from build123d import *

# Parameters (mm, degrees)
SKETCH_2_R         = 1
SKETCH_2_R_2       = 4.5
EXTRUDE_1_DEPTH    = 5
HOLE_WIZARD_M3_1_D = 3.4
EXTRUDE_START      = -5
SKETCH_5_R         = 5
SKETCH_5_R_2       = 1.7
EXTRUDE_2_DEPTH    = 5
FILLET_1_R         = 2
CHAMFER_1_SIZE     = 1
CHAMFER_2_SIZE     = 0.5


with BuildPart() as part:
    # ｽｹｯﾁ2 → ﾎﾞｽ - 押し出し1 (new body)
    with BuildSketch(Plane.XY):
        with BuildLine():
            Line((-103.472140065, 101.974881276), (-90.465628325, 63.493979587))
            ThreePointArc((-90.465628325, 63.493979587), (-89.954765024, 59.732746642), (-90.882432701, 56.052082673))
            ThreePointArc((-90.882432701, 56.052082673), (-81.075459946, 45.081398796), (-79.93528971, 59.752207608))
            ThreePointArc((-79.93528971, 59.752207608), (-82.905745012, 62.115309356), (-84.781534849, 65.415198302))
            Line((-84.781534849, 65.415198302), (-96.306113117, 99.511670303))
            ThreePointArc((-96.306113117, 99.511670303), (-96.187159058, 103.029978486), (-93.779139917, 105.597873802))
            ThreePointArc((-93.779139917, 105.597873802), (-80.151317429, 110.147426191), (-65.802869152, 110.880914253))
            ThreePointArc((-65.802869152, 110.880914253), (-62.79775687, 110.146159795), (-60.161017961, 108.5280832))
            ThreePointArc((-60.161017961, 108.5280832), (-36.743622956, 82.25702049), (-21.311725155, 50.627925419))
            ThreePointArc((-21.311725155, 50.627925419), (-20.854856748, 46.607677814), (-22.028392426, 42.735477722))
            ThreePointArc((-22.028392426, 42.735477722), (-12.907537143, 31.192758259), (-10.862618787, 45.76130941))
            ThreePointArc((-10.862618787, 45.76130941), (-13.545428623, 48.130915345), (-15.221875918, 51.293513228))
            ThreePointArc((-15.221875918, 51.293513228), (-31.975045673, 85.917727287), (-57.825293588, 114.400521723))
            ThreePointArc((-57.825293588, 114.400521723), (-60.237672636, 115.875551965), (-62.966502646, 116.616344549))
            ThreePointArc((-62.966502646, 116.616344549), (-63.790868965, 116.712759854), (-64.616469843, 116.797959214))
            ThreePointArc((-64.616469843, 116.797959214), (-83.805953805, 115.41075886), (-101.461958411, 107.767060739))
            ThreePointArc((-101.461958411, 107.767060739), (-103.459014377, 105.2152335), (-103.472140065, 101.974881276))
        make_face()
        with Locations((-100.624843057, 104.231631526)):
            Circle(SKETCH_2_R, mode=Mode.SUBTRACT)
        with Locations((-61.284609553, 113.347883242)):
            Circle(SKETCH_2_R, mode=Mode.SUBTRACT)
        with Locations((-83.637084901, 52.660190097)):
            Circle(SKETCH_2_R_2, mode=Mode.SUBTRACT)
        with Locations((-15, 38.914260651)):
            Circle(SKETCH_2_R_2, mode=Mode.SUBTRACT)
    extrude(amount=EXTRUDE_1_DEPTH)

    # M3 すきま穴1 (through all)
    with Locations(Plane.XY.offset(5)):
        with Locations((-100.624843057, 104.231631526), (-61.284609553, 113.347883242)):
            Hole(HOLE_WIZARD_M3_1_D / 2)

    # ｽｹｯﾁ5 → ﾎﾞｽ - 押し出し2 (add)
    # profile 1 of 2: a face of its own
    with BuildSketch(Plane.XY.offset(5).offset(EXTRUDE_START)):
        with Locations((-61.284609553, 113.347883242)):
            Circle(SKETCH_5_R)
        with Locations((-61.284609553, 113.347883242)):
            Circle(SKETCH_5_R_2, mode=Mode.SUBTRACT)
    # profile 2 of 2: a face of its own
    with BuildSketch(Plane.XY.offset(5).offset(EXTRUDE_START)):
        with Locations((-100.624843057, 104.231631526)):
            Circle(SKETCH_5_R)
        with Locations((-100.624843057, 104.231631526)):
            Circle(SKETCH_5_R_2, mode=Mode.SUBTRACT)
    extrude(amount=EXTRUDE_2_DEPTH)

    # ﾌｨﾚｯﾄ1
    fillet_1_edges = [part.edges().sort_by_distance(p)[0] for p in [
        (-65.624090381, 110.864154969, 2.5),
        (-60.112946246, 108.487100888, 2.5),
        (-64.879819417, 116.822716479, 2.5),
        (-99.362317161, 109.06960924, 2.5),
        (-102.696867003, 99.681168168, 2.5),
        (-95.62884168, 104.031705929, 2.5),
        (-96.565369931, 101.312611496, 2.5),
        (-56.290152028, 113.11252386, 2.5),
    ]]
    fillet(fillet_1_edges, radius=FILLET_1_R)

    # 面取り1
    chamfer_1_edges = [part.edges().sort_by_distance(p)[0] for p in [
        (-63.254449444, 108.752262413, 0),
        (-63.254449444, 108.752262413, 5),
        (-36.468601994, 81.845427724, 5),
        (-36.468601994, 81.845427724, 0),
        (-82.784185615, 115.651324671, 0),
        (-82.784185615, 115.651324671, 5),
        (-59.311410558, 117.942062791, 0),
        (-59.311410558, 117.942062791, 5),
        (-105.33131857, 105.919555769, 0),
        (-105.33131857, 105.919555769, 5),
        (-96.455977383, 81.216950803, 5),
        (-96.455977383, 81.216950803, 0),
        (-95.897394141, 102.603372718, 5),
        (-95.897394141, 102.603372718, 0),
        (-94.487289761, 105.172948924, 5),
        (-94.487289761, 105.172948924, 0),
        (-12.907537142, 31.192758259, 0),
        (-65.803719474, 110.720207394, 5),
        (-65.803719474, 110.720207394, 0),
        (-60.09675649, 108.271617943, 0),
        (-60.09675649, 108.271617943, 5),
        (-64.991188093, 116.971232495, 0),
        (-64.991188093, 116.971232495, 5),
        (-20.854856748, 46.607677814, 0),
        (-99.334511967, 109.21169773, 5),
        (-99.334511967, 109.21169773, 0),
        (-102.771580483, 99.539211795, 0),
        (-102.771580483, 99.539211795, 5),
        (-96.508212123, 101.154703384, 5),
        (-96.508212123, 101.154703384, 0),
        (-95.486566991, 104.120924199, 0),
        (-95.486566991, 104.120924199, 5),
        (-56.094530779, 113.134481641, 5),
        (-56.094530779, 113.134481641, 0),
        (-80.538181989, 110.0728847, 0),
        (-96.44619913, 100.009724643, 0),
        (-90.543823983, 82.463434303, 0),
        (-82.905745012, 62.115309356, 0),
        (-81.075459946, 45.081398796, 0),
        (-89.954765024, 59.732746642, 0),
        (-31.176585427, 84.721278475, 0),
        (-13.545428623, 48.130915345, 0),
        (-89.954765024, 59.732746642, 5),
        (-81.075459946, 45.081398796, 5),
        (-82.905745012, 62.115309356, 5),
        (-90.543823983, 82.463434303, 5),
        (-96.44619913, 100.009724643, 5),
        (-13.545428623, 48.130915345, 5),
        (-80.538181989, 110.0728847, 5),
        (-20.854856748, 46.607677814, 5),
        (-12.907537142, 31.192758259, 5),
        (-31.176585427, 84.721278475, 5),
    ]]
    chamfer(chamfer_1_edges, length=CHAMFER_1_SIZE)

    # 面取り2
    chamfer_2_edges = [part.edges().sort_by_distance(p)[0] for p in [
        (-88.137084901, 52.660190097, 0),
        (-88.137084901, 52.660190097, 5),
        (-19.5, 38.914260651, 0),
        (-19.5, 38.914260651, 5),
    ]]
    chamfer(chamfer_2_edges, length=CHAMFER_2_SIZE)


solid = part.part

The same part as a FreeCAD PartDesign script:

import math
import FreeCAD as App
import Part
import Sketcher
from FreeCAD import Vector
Q = App.Units.Quantity


def edges_at(feature, points):
    """Names of the edges that pass closest to the given points."""
    edges = feature.Shape.Edges
    near = lambda p: min(range(len(edges)), key=lambda i: edges[i].distToShape(Part.Vertex(*p))[0])
    return sorted({f"Edge{near(p) + 1}" for p in points})

doc = App.newDocument("Part")
body = doc.addObject("PartDesign::Body", "Body")

# Sketch on XY plane
sketch1 = doc.addObject("Sketcher::SketchObject", "Sketch")
body.addObject(sketch1)
sketch1.AttachmentSupport = (doc.XY_Plane, [""])
sketch1.MapMode = "FlatFace"
sketch1.addGeometry([
    Part.LineSegment(Vector(-103.5, 102, 0), Vector(-90.5, 63.5, 0)),  # 0
    Part.ArcOfCircle(Part.Circle(Vector(-99.9, 60.3, 0), Vector(0, 0, 1), 10), math.radians(-25), math.radians(19)),  # 1
    Part.ArcOfCircle(Part.Circle(Vector(-83.6, 52.7, 0), Vector(0, 0, 1), 8), math.radians(155), math.radians(422)),  # 2
    Part.ArcOfCircle(Part.Circle(Vector(-75.3, 68.6, 0), Vector(0, 0, 1), 10), math.radians(-161), math.radians(-118)),  # 3
    Part.LineSegment(Vector(-84.8, 65.4, 0), Vector(-96.3, 99.5, 0)),  # 4
    Part.ArcOfCircle(Part.Circle(Vector(-91.6, 101.1, 0), Vector(0, 0, 1), 5), math.radians(116), math.radians(199)),  # 5
    Part.ArcOfCircle(Part.Circle(Vector(-70.3, 57.9, 0), Vector(0, 0, 1), 53.2), math.radians(85), math.radians(116)),  # 6
    Part.ArcOfCircle(Part.Circle(Vector(-66.6, 100.9, 0), Vector(0, 0, 1), 10), math.radians(50), math.radians(85)),  # 7
    Part.ArcOfCircle(Part.Circle(Vector(-143.7, 10.5, 0), Vector(0, 0, 1), 128.8), math.radians(18), math.radians(50)),  # 8
    Part.ArcOfCircle(Part.Circle(Vector(-30.8, 47.5, 0), Vector(0, 0, 1), 10), math.radians(-29), math.radians(18)),  # 9
    Part.ArcOfCircle(Part.Circle(Vector(-15, 38.9, 0), Vector(0, 0, 1), 8), math.radians(151), math.radians(419)),  # 10
    Part.ArcOfCircle(Part.Circle(Vector(-5.7, 54.3, 0), Vector(0, 0, 1), 10), math.radians(-162), math.radians(-121)),  # 11
    Part.ArcOfCircle(Part.Circle(Vector(-143.7, 10.5, 0), Vector(0, 0, 1), 134.8), math.radians(18), math.radians(50)),  # 12
    Part.ArcOfCircle(Part.Circle(Vector(-64.2, 106.7, 0), Vector(0, 0, 1), 10), math.radians(50), math.radians(83)),  # 13
    Part.ArcOfCircle(Part.Circle(Vector(-70.5, 56, 0), Vector(0, 0, 1), 61.1), math.radians(82.94), math.radians(84.5)),  # 14
    Part.ArcOfCircle(Part.Circle(Vector(-70.1, 59.6, 0), Vector(0, 0, 1), 57.5), math.radians(84), math.radians(123)),  # 15
    Part.ArcOfCircle(Part.Circle(Vector(-98.7, 103.6, 0), Vector(0, 0, 1), 5), math.radians(123), math.radians(199)),  # 16
    Part.Circle(Vector(-83.6, 52.7, 0), Vector(0, 0, 1), 4.5),  # 17
    Part.Circle(Vector(-15, 38.9, 0), Vector(0, 0, 1), 4.5),  # 18
    Part.Circle(Vector(-100.6, 104.2, 0), Vector(0, 0, 1), 1),  # 19
    Part.Circle(Vector(-61.3, 113.3, 0), Vector(0, 0, 1), 1),  # 20
], False)
sketch1.addConstraint([
    Sketcher.Constraint("Tangent", 0, 2, 1, 2),
    Sketcher.Constraint("Tangent", 1, 1, 2, 1),
    Sketcher.Constraint("Tangent", 2, 2, 3, 2),
    Sketcher.Constraint("Tangent", 3, 1, 4, 1),
    Sketcher.Constraint("Tangent", 4, 2, 5, 2),
    Sketcher.Constraint("Tangent", 5, 1, 6, 2),
    Sketcher.Constraint("Tangent", 6, 1, 7, 2),
    Sketcher.Constraint("Tangent", 7, 1, 8, 2),
    Sketcher.Constraint("Tangent", 8, 1, 9, 2),
    Sketcher.Constraint("Tangent", 9, 1, 10, 1),
    Sketcher.Constraint("Tangent", 10, 2, 11, 2),
    Sketcher.Constraint("Tangent", 11, 1, 12, 1),
    Sketcher.Constraint("Tangent", 12, 2, 13, 1),
    Sketcher.Constraint("Tangent", 13, 2, 14, 1),
    Sketcher.Constraint("Tangent", 14, 2, 15, 1),
    Sketcher.Constraint("Tangent", 15, 2, 16, 1),
    Sketcher.Constraint("Tangent", 16, 2, 0, 1),
    Sketcher.Constraint("Coincident", 12, 3, 8, 3),
    Sketcher.Constraint("Coincident", 17, 3, 2, 3),
    Sketcher.Constraint("Coincident", 18, 3, 10, 3),
    Sketcher.Constraint("Equal", 1, 3),
    Sketcher.Constraint("Equal", 3, 7),
    Sketcher.Constraint("Equal", 7, 9),
    Sketcher.Constraint("Equal", 2, 10),
    Sketcher.Constraint("Equal", 9, 11),
    Sketcher.Constraint("Equal", 11, 13),
    Sketcher.Constraint("Equal", 5, 16),
    Sketcher.Constraint("Equal", 17, 18),
    Sketcher.Constraint("Equal", 19, 20),
    Sketcher.Constraint("Parallel", 0, 4),
    Sketcher.Constraint("Diameter", 17, Q("9 mm")),
    Sketcher.Constraint("Diameter", 19, Q("2 mm")),
    Sketcher.Constraint("Radius", 1, Q("10 mm")),
    Sketcher.Constraint("Radius", 2, Q("8 mm")),
    Sketcher.Constraint("Radius", 5, Q("5 mm")),
    Sketcher.Constraint("DistanceX", 10, 3, -1, 1, Q("15 mm")),
    Sketcher.Constraint("Radius", 8, Q("128.793821 mm")),
    Sketcher.Constraint("Radius", 12, Q("134.793821 mm")),
    Sketcher.Constraint("Radius", 15, Q("57.46331 mm")),
    Sketcher.Constraint("DistanceY", -1, 1, 9, 3, Q("47.511999 mm")),
    Sketcher.Constraint("Radius", 6, Q("53.151912 mm")),
    Sketcher.Constraint("Radius", 14, Q("61.050597 mm")),
    Sketcher.Constraint("DistanceX", 16, 2, 5, 1, Q("9.693 mm")),
    Sketcher.Constraint("DistanceY", -1, 1, 3, 1, Q("65.415198 mm")),
    Sketcher.Constraint("DistanceY", 7, 3, 5, 3, Q("0.196099 mm")),
    Sketcher.Constraint("DistanceX", 8, 3, 3, 3, Q("68.3856 mm")),
    Sketcher.Constraint("DistanceX", 2, 3, 9, 3, Q("52.823202 mm")),
    Sketcher.Constraint("DistanceX", 7, 3, 9, 3, Q("35.832899 mm")),
    Sketcher.Constraint("DistanceY", 15, 3, 3, 3, Q("9.017798 mm")),
    Sketcher.Constraint("DistanceX", 19, 3, 13, 3, Q("36.429202 mm")),
    Sketcher.Constraint("DistanceY", 4, 2, 13, 3, Q("7.180501 mm")),
    Sketcher.Constraint("DistanceX", 5, 3, 6, 1, Q("25.766499 mm")),
    Sketcher.Constraint("DistanceY", 7, 1, 20, 3, Q("4.8198 mm")),
    Sketcher.Constraint("DistanceX", 9, 1, 11, 3, Q("16.3375 mm")),
    Sketcher.Constraint("DistanceX", 6, 1, 14, 2, Q("1.186399 mm")),
    Sketcher.Constraint("Distance", 4, Q("35.991462 mm")),
    Sketcher.Constraint("DistanceY", -1, 1, 19, 3, Q("104.231632 mm")),
    Sketcher.Constraint("DistanceX", 20, 3, -1, 1, Q("61.28461 mm")),
])
pad1 = doc.addObject("PartDesign::Pad", "Pad")
body.addObject(pad1)
pad1.Profile = sketch1
pad1.Length = 5

# Sketch on XY plane
sketch2 = doc.addObject("Sketcher::SketchObject", "Sketch001")
body.addObject(sketch2)
sketch2.AttachmentSupport = (doc.XY_Plane, [""])
sketch2.MapMode = "FlatFace"
sketch2.AttachmentOffset = App.Placement(Vector(0, 0, 5), App.Rotation())
sketch2.addGeometry([
    Part.Circle(Vector(-100.6, 104.2, 0), Vector(0, 0, 1), 1.7),
    Part.Circle(Vector(-61.3, 113.3, 0), Vector(0, 0, 1), 1.7),
], False)
sketch2.addConstraint([
    Sketcher.Constraint("Equal", 0, 1),
    Sketcher.Constraint("Diameter", 0, Q("3.4 mm")),
    Sketcher.Constraint("DistanceY", -1, 1, 0, 3, Q("104.231632 mm")),
    Sketcher.Constraint("DistanceX", 1, 3, -1, 1, Q("61.28461 mm")),
    Sketcher.Constraint("DistanceY", 0, 3, 1, 3, Q("9.116252 mm")),
    Sketcher.Constraint("DistanceX", 0, 3, -1, 1, Q("100.624843 mm")),
])
doc.recompute()
hole = doc.addObject("PartDesign::Hole", "Hole")
body.addObject(hole)
hole.Profile = sketch2
hole.ThreadType = "None"
hole.Diameter = 3.4
hole.DepthType = "ThroughAll"

# Sketch on XY plane
sketch3 = doc.addObject("Sketcher::SketchObject", "Sketch002")
body.addObject(sketch3)
sketch3.AttachmentSupport = (doc.XY_Plane, [""])
sketch3.MapMode = "FlatFace"
sketch3.addGeometry([
    Part.Circle(Vector(-61.3, 113.3, 0), Vector(0, 0, 1), 5),
    Part.Circle(Vector(-61.3, 113.3, 0), Vector(0, 0, 1), 1.7),
    Part.Circle(Vector(-100.6, 104.2, 0), Vector(0, 0, 1), 5),
    Part.Circle(Vector(-100.6, 104.2, 0), Vector(0, 0, 1), 1.7),
], False)
sketch3.addConstraint([
    Sketcher.Constraint("Coincident", 1, 3, 0, 3),
    Sketcher.Constraint("Coincident", 3, 3, 2, 3),
    Sketcher.Constraint("Equal", 0, 2),
    Sketcher.Constraint("Equal", 1, 3),
    Sketcher.Constraint("Diameter", 0, Q("10 mm")),
    Sketcher.Constraint("Diameter", 1, Q("3.4 mm")),
    Sketcher.Constraint("DistanceX", 0, 3, -1, 1, Q("61.28461 mm")),
    Sketcher.Constraint("DistanceY", -1, 1, 2, 3, Q("104.231632 mm")),
    Sketcher.Constraint("DistanceY", 2, 3, 0, 3, Q("9.116252 mm")),
    Sketcher.Constraint("DistanceX", 2, 3, -1, 1, Q("100.624843 mm")),
])
pad2 = doc.addObject("PartDesign::Pad", "Pad001")
body.addObject(pad2)
pad2.Profile = sketch3
pad2.Length = 5
doc.recompute()

fillet = doc.addObject("PartDesign::Fillet", "Fillet")
body.addObject(fillet)
fillet.Base = (pad2, edges_at(pad2, [
    (-65.624, 110.864, 2.5),
    (-60.113, 108.487, 2.5),
    (-64.88, 116.823, 2.5),
    (-99.362, 109.07, 2.5),
    (-102.697, 99.681, 2.5),
    (-95.629, 104.032, 2.5),
    (-96.565, 101.313, 2.5),
    (-56.29, 113.113, 2.5),
]))
fillet.Radius = 2
doc.recompute()

chamfer = doc.addObject("PartDesign::Chamfer", "Chamfer")
body.addObject(chamfer)
chamfer.Base = (fillet, edges_at(fillet, [
    (-63.254, 108.752, 0),
    (-63.254, 108.752, 5),
    (-36.469, 81.845, 5),
    (-36.469, 81.845, 0),
    (-82.784, 115.651, 0),
    (-82.784, 115.651, 5),
    (-59.311, 117.942, 0),
    (-59.311, 117.942, 5),
    (-105.331, 105.92, 0),
    (-105.331, 105.92, 5),
    (-96.456, 81.217, 5),
    (-96.456, 81.217, 0),
    (-95.897, 102.603, 5),
    (-95.897, 102.603, 0),
    (-94.487, 105.173, 5),
    (-94.487, 105.173, 0),
    (-12.908, 31.193, 0),
    (-65.804, 110.72, 5),
    (-65.804, 110.72, 0),
    (-60.097, 108.272, 0),
    (-60.097, 108.272, 5),
    (-64.991, 116.971, 0),
    (-64.991, 116.971, 5),
    (-20.855, 46.608, 0),
    (-99.335, 109.212, 5),
    (-99.335, 109.212, 0),
    (-102.772, 99.539, 0),
    (-102.772, 99.539, 5),
    (-96.508, 101.155, 5),
    (-96.508, 101.155, 0),
    (-95.487, 104.121, 0),
    (-95.487, 104.121, 5),
    (-56.095, 113.134, 5),
    (-56.095, 113.134, 0),
    (-80.538, 110.073, 0),
    (-96.446, 100.01, 0),
    (-90.544, 82.463, 0),
    (-82.906, 62.115, 0),
    (-81.075, 45.081, 0),
    (-89.955, 59.733, 0),
    (-31.177, 84.721, 0),
    (-13.545, 48.131, 0),
    (-89.955, 59.733, 5),
    (-81.075, 45.081, 5),
    (-82.906, 62.115, 5),
    (-90.544, 82.463, 5),
    (-96.446, 100.01, 5),
    (-13.545, 48.131, 5),
    (-80.538, 110.073, 5),
    (-20.855, 46.608, 5),
    (-12.908, 31.193, 5),
    (-31.177, 84.721, 5),
]))
chamfer.Size = 1
doc.recompute()

chamfer2 = doc.addObject("PartDesign::Chamfer", "Chamfer001")
body.addObject(chamfer2)
chamfer2.Base = (chamfer, edges_at(chamfer, [
    (-88.137, 52.66, 0),
    (-88.137, 52.66, 5),
    (-19.5, 38.914, 0),
    (-19.5, 38.914, 5),
]))
chamfer2.Size = 0.5

doc.recompute()
